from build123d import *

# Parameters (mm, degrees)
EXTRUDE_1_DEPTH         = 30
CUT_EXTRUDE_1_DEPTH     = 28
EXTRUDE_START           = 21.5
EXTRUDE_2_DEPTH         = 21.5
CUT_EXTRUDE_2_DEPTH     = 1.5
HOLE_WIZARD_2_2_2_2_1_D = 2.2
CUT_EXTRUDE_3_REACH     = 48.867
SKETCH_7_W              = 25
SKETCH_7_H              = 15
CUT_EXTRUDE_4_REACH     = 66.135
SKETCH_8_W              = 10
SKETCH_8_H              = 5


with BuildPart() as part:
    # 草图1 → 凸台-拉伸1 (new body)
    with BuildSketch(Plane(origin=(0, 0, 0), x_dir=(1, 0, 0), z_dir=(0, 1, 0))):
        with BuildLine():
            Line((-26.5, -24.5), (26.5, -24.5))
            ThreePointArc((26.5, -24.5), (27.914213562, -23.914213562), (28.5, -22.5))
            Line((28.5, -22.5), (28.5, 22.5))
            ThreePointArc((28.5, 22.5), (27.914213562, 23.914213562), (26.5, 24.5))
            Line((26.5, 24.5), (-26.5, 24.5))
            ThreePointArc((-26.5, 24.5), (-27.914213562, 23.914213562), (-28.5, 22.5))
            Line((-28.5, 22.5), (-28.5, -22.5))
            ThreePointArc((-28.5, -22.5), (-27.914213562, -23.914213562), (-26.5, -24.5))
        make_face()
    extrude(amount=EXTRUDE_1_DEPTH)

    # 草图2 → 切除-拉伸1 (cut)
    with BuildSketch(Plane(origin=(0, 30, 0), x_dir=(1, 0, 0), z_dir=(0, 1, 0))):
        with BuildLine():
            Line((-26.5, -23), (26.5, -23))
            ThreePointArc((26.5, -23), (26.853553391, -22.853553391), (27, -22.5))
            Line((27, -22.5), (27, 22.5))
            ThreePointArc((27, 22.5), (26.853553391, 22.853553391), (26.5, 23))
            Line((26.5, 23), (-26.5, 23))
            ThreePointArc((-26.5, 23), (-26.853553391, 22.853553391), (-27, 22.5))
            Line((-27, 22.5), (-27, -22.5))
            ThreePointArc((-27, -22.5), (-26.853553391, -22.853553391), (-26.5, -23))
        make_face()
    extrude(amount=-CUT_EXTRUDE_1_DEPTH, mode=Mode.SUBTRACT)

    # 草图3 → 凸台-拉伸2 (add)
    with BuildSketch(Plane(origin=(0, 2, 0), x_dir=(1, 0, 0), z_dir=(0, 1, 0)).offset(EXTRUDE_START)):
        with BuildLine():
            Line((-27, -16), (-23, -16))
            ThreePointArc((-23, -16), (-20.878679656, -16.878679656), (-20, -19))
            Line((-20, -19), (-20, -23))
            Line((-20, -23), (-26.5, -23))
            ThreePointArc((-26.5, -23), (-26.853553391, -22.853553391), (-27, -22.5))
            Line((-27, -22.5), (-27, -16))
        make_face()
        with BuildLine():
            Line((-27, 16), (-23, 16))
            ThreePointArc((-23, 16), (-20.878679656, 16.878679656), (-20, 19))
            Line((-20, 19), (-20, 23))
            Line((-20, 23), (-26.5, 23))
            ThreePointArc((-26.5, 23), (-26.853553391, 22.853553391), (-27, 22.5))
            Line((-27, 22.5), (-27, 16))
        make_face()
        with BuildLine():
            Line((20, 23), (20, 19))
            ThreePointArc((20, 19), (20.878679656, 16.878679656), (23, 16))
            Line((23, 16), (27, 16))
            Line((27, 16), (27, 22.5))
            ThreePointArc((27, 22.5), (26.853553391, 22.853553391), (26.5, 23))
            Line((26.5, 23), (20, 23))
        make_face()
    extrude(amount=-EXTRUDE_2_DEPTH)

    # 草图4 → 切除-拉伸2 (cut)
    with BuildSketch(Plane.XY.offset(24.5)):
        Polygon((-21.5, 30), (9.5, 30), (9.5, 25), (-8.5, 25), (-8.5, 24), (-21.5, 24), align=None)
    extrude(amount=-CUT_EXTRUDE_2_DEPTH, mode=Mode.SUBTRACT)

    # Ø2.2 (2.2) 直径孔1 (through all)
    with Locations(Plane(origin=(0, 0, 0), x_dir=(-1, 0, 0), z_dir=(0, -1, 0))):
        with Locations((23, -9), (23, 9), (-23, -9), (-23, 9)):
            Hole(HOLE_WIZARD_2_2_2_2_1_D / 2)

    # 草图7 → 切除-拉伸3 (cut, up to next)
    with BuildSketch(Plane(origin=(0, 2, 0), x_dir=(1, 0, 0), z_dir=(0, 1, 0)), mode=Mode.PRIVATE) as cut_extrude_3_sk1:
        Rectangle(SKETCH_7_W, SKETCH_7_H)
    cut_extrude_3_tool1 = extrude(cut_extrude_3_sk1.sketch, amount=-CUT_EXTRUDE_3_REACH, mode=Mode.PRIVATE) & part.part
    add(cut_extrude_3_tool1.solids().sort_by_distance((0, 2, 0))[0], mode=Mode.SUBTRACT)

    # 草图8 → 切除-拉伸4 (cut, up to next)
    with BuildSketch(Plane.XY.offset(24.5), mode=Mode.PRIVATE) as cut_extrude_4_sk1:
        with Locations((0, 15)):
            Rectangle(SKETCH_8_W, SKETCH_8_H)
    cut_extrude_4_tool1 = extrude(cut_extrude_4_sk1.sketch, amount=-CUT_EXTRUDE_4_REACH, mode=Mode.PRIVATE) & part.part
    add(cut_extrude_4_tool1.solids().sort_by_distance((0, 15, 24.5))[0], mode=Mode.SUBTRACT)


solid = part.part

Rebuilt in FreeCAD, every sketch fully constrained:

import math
import FreeCAD as App
import Part
import Sketcher

V = App.Vector
Q = App.Units.Quantity


def add_polygon(sketch, points):
    """Adds a closed chain of lines whose ends are joined by coincident constraints."""
    first, n = sketch.GeometryCount, len(points)
    for a, b in zip(points, points[1:] + points[:1]):
        sketch.addGeometry(Part.LineSegment(App.Vector(*a, 0), App.Vector(*b, 0)), False)
    for i in range(n):
        sketch.addConstraint(Sketcher.Constraint("Coincident", first + i, 2, first + (i + 1) % n, 1))

doc = App.newDocument("Part")
params = doc.addObject("Spreadsheet::Sheet", "Params")
for row, (alias, value) in enumerate([
    ("sketch1_radius", "2 mm"),
    ("sketch1_width", "53 mm"),
    ("sketch1_height", "45 mm"),
    ("pad1_length", "30 mm"),
    ("sketch2_radius", "0.5 mm"),
    ("sketch2_width", "53 mm"),
    ("sketch2_height", "45 mm"),
    ("pocket1_length", "28 mm"),
    ("sketch3_radius", "3 mm"),
    ("sketch3_radius2", "0.5 mm"),
    ("sketch3_width", "4 mm"),
    ("pad2_length", "21.5 mm"),
    ("sketch4_width", "31 mm"),
    ("sketch4_width2", "13 mm"),
    ("sketch4_height", "6 mm"),
    ("sketch4_height2", "1 mm"),
    ("pocket2_length", "1.5 mm"),
    ("sketch5_diameter", "2.2 mm"),
    ("hole_diameter", "2.2 mm"),
    ("sketch6_width", "25 mm"),
    ("sketch6_height", "15 mm"),
    ("sketch7_width", "10 mm"),
    ("sketch7_height", "5 mm"),
], start=1):
    params.set(f"A{row}", alias)
    params.set(f"B{row}", "=" + value)
    params.setAlias(f"B{row}", alias)

body = doc.addObject("PartDesign::Body", "Body")

sketch1 = body.newObject("Sketcher::SketchObject", "Sketch")
sketch1.AttachmentSupport = (doc.getObject("XZ_Plane"), [""])
sketch1.MapMode = "FlatFace"
sketch1.addGeometry([
    Part.LineSegment(V(-26.5, 24.5, 0), V(26.5, 24.5, 0)),
    Part.ArcOfCircle(Part.Circle(V(26.5, 22.5, 0), V(0, 0, 1), 2), math.radians(0), math.radians(90)),
    Part.LineSegment(V(28.5, 22.5, 0), V(28.5, -22.5, 0)),
    Part.ArcOfCircle(Part.Circle(V(26.5, -22.5, 0), V(0, 0, 1), 2), math.radians(-90), math.radians(0)),
    Part.LineSegment(V(26.5, -24.5, 0), V(-26.5, -24.5, 0)),
    Part.ArcOfCircle(Part.Circle(V(-26.5, -22.5, 0), V(0, 0, 1), 2), math.radians(-180), math.radians(-90)),
    Part.LineSegment(V(-28.5, -22.5, 0), V(-28.5, 22.5, 0)),
    Part.ArcOfCircle(Part.Circle(V(-26.5, 22.5, 0), V(0, 0, 1), 2), math.radians(90), math.radians(180)),
], False)
sketch1.addConstraint([
    Sketcher.Constraint("Tangent", 0, 2, 1, 2),
    Sketcher.Constraint("Tangent", 1, 1, 2, 1),
    Sketcher.Constraint("Tangent", 2, 2, 3, 2),
    Sketcher.Constraint("Tangent", 3, 1, 4, 1),
    Sketcher.Constraint("Tangent", 4, 2, 5, 2),
    Sketcher.Constraint("Tangent", 5, 1, 6, 1),
    Sketcher.Constraint("Tangent", 6, 2, 7, 2),
    Sketcher.Constraint("Tangent", 7, 1, 0, 1),
    Sketcher.Constraint("Horizontal", 0),
    Sketcher.Constraint("Vertical", 2),
    Sketcher.Constraint("Horizontal", 4),
    Sketcher.Constraint("Vertical", 6),
    Sketcher.Constraint("Equal", 1, 3),
    Sketcher.Constraint("Equal", 3, 5),
    Sketcher.Constraint("Equal", 5, 7),
    Sketcher.Constraint("Symmetric", 1, 3, 5, 3, -1, 1),
    Sketcher.Constraint("Radius", 1, Q("2 mm")),
    Sketcher.Constraint("DistanceX", 0, 1, 0, 2, Q("53 mm")),
    Sketcher.Constraint("DistanceY", 2, 2, 2, 1, Q("45 mm")),
])
sketch1.setExpression("Constraints[16]", "Params.sketch1_radius")
sketch1.setExpression("Constraints[17]", "Params.sketch1_width")
sketch1.setExpression("Constraints[18]", "Params.sketch1_height")
pad1 = body.newObject("PartDesign::Pad", "Pad")
pad1.Profile = sketch1
pad1.setExpression("Length", "Params.pad1_length")
pad1.Reversed = True

sketch2 = body.newObject("Sketcher::SketchObject", "Sketch001")
sketch2.AttachmentSupport = (doc.getObject("XZ_Plane"), [""])
sketch2.MapMode = "FlatFace"
sketch2.AttachmentOffset = App.Placement(V(0, 0, -30), App.Rotation())
sketch2.addGeometry([
    Part.LineSegment(V(-26.5, 23, 0), V(26.5, 23, 0)),
    Part.ArcOfCircle(Part.Circle(V(26.5, 22.5, 0), V(0, 0, 1), 0.5), math.radians(0), math.radians(90)),
    Part.LineSegment(V(27, 22.5, 0), V(27, -22.5, 0)),
    Part.ArcOfCircle(Part.Circle(V(26.5, -22.5, 0), V(0, 0, 1), 0.5), math.radians(-90), math.radians(0)),
    Part.LineSegment(V(26.5, -23, 0), V(-26.5, -23, 0)),
    Part.ArcOfCircle(Part.Circle(V(-26.5, -22.5, 0), V(0, 0, 1), 0.5), math.radians(180), math.radians(270)),
    Part.LineSegment(V(-27, -22.5, 0), V(-27, 22.5, 0)),
    Part.ArcOfCircle(Part.Circle(V(-26.5, 22.5, 0), V(0, 0, 1), 0.5), math.radians(90), math.radians(180)),
], False)
sketch2.addConstraint([
    Sketcher.Constraint("Tangent", 0, 2, 1, 2),
    Sketcher.Constraint("Tangent", 1, 1, 2, 1),
    Sketcher.Constraint("Tangent", 2, 2, 3, 2),
    Sketcher.Constraint("Tangent", 3, 1, 4, 1),
    Sketcher.Constraint("Tangent", 4, 2, 5, 2),
    Sketcher.Constraint("Tangent", 5, 1, 6, 1),
    Sketcher.Constraint("Tangent", 6, 2, 7, 2),
    Sketcher.Constraint("Tangent", 7, 1, 0, 1),
    Sketcher.Constraint("Horizontal", 0),
    Sketcher.Constraint("Vertical", 2),
    Sketcher.Constraint("Horizontal", 4),
    Sketcher.Constraint("Vertical", 6),
    Sketcher.Constraint("Equal", 1, 3),
    Sketcher.Constraint("Equal", 3, 5),
    Sketcher.Constraint("Equal", 5, 7),
    Sketcher.Constraint("Symmetric", 1, 3, 5, 3, -1, 1),
    Sketcher.Constraint("Radius", 1, Q("0.5 mm")),
    Sketcher.Constraint("DistanceX", 0, 1, 0, 2, Q("53 mm")),
    Sketcher.Constraint("DistanceY", 2, 2, 2, 1, Q("45 mm")),
])
sketch2.setExpression("Constraints[16]", "Params.sketch2_radius")
sketch2.setExpression("Constraints[17]", "Params.sketch2_width")
sketch2.setExpression("Constraints[18]", "Params.sketch2_height")
pocket1 = body.newObject("PartDesign::Pocket", "Pocket")
pocket1.Profile = sketch2
pocket1.setExpression("Length", "Params.pocket1_length")
pocket1.Reversed = True

sketch3 = body.newObject("Sketcher::SketchObject", "Sketch002")
sketch3.AttachmentSupport = (doc.getObject("XZ_Plane"), [""])
sketch3.MapMode = "FlatFace"
sketch3.AttachmentOffset = App.Placement(V(0, 0, -23.5), App.Rotation())
sketch3.addGeometry([
    Part.LineSegment(V(-23, 16, 0), V(-27, 16, 0)),
    Part.LineSegment(V(-27, 16, 0), V(-27, 22.5, 0)),
    Part.ArcOfCircle(Part.Circle(V(-26.5, 22.5, 0), V(0, 0, 1), 0.5), math.radians(90), math.radians(180)),
    Part.LineSegment(V(-26.5, 23, 0), V(-20, 23, 0)),
    Part.LineSegment(V(-20, 23, 0), V(-20, 19, 0)),
    Part.ArcOfCircle(Part.Circle(V(-23, 19, 0), V(0, 0, 1), 3), math.radians(-90), math.radians(0)),
    Part.LineSegment(V(-27, -16, 0), V(-23, -16, 0)),
    Part.ArcOfCircle(Part.Circle(V(-23, -19, 0), V(0, 0, 1), 3), math.radians(0), math.radians(90)),
    Part.LineSegment(V(-20, -19, 0), V(-20, -23, 0)),
    Part.LineSegment(V(-20, -23, 0), V(-26.5, -23, 0)),
    Part.ArcOfCircle(Part.Circle(V(-26.5, -22.5, 0), V(0, 0, 1), 0.5), math.radians(180), math.radians(270)),
    Part.LineSegment(V(-27, -22.5, 0), V(-27, -16, 0)),
    Part.LineSegment(V(20, -23, 0), V(20, -19, 0)),
    Part.ArcOfCircle(Part.Circle(V(23, -19, 0), V(0, 0, 1), 3), math.radians(90), math.radians(180)),
    Part.LineSegment(V(23, -16, 0), V(27, -16, 0)),
    Part.LineSegment(V(27, -16, 0), V(27, -22.5, 0)),
    Part.ArcOfCircle(Part.Circle(V(26.5, -22.5, 0), V(0, 0, 1), 0.5), math.radians(-90), math.radians(0)),
    Part.LineSegment(V(26.5, -23, 0), V(20, -23, 0)),
], False)
sketch3.addConstraint([
    Sketcher.Constraint("Coincident", 0, 2, 1, 1),
    Sketcher.Constraint("Tangent", 1, 2, 2, 2),
    Sketcher.Constraint("Tangent", 2, 1, 3, 1),
    Sketcher.Constraint("Coincident", 3, 2, 4, 1),
    Sketcher.Constraint("Tangent", 4, 2, 5, 2),
    Sketcher.Constraint("Tangent", 5, 1, 0, 1),
    Sketcher.Constraint("Tangent", 6, 2, 7, 2),
    Sketcher.Constraint("Tangent", 7, 1, 8, 1),
    Sketcher.Constraint("Coincident", 8, 2, 9, 1),
    Sketcher.Constraint("Tangent", 9, 2, 10, 2),
    Sketcher.Constraint("Tangent", 10, 1, 11, 1),
    Sketcher.Constraint("Coincident", 11, 2, 6, 1),
    Sketcher.Constraint("Tangent", 12, 2, 13, 2),
    Sketcher.Constraint("Tangent", 13, 1, 14, 1),
    Sketcher.Constraint("Coincident", 14, 2, 15, 1),
    Sketcher.Constraint("Tangent", 15, 2, 16, 2),
    Sketcher.Constraint("Tangent", 16, 1, 17, 1),
    Sketcher.Constraint("Coincident", 17, 2, 12, 1),
    Sketcher.Constraint("Horizontal", 0),
    Sketcher.Constraint("Vertical", 1),
    Sketcher.Constraint("Horizontal", 3),
    Sketcher.Constraint("Vertical", 4),
    Sketcher.Constraint("Horizontal", 6),
    Sketcher.Constraint("Vertical", 8),
    Sketcher.Constraint("Horizontal", 9),
    Sketcher.Constraint("Vertical", 11),
    Sketcher.Constraint("Vertical", 12),
    Sketcher.Constraint("Horizontal", 14),
    Sketcher.Constraint("Vertical", 15),
    Sketcher.Constraint("Horizontal", 17),
    Sketcher.Constraint("Equal", 5, 7),
    Sketcher.Constraint("Equal", 2, 10),
    Sketcher.Constraint("Equal", 7, 13),
    Sketcher.Constraint("Equal", 10, 16),
    Sketcher.Constraint("Symmetric", 5, 3, 13, 3, -1, 1),
    Sketcher.Constraint("Symmetric", 2, 3, 16, 3, -1, 1),
    Sketcher.Constraint("Symmetric", 7, 3, 13, 3, -2),
    Sketcher.Constraint("Symmetric", 10, 3, 16, 3, -2),
    Sketcher.Constraint("Equal", 17, 1),
    Sketcher.Constraint("Radius", 5, Q("3 mm")),
    Sketcher.Constraint("Radius", 2, Q("0.5 mm")),
    Sketcher.Constraint("DistanceX", 0, 2, 0, 1, Q("4 mm")),
    Sketcher.Constraint("DistanceX", 5, 3, -1, 1, Q("23 mm")),
    Sketcher.Constraint("DistanceY", -1, 1, 5, 3, Q("19 mm")),
])
sketch3.setExpression("Constraints[39]", "Params.sketch3_radius")
sketch3.setExpression("Constraints[40]", "Params.sketch3_radius2")
sketch3.setExpression("Constraints[41]", "Params.sketch3_width")
pad2 = body.newObject("PartDesign::Pad", "Pad001")
pad2.Profile = sketch3
pad2.setExpression("Length", "Params.pad2_length")

sketch4 = body.newObject("Sketcher::SketchObject", "Sketch003")
sketch4.AttachmentSupport = (doc.getObject("XY_Plane"), [""])
sketch4.MapMode = "FlatFace"
sketch4.AttachmentOffset = App.Placement(V(0, 0, 24.5), App.Rotation())
add_polygon(sketch4, [(9.5, 30), (-21.5, 30), (-21.5, 24), (-8.5, 24), (-8.5, 25), (9.5, 25)])
sketch4.addConstraint([
    Sketcher.Constraint("Horizontal", 0),
    Sketcher.Constraint("Vertical", 1),
    Sketcher.Constraint("Horizontal", 2),
    Sketcher.Constraint("Vertical", 3),
    Sketcher.Constraint("Horizontal", 4),
    Sketcher.Constraint("Vertical", 5),
    Sketcher.Constraint("DistanceX", 0, 2, 0, 1, Q("31 mm")),
    Sketcher.Constraint("DistanceX", 2, 1, 2, 2, Q("13 mm")),
    Sketcher.Constraint("DistanceY", 1, 2, 1, 1, Q("6 mm")),
    Sketcher.Constraint("DistanceY", 3, 1, 3, 2, Q("1 mm")),
    Sketcher.Constraint("DistanceY", -1, 1, 0, 2, Q("30 mm")),
    Sketcher.Constraint("DistanceX", 0, 2, -1, 1, Q("21.5 mm")),
])
sketch4.setExpression("Constraints[12]", "Params.sketch4_width")
sketch4.setExpression("Constraints[13]", "Params.sketch4_width2")
sketch4.setExpression("Constraints[14]", "Params.sketch4_height")
sketch4.setExpression("Constraints[15]", "Params.sketch4_height2")
pocket2 = body.newObject("PartDesign::Pocket", "Pocket001")
pocket2.Profile = sketch4
pocket2.setExpression("Length", "Params.pocket2_length")

sketch5 = body.newObject("Sketcher::SketchObject", "Sketch004")
sketch5.AttachmentSupport = (doc.getObject("XZ_Plane"), [""])
sketch5.MapMode = "FlatFace"
sketch5.addGeometry([
    Part.Circle(V(-23, 9, 0), V(0, 0, 1), 1.1),
    Part.Circle(V(-23, -9, 0), V(0, 0, 1), 1.1),
    Part.Circle(V(23, 9, 0), V(0, 0, 1), 1.1),
    Part.Circle(V(23, -9, 0), V(0, 0, 1), 1.1),
], False)
sketch5.addConstraint([
    Sketcher.Constraint("Equal", 0, 1),
    Sketcher.Constraint("Equal", 1, 2),
    Sketcher.Constraint("Equal", 2, 3),
    Sketcher.Constraint("Symmetric", 1, 3, 2, 3, -1, 1),
    Sketcher.Constraint("Symmetric", 0, 3, 3, 3, -1, 1),
    Sketcher.Constraint("Symmetric", 0, 3, 2, 3, -2),
    Sketcher.Constraint("Diameter", 0, Q("2.2 mm")),
    Sketcher.Constraint("DistanceX", 0, 3, -1, 1, Q("23 mm")),
    Sketcher.Constraint("DistanceY", -1, 1, 0, 3, Q("9 mm")),
])
sketch5.setExpression("Constraints[6]", "Params.sketch5_diameter")
doc.recompute()
hole = body.newObject("PartDesign::Hole", "Hole")
hole.Profile = sketch5
hole.ThreadType = "None"
hole.setExpression("Diameter", "Params.hole_diameter")
hole.DepthType = "ThroughAll"

sketch6 = body.newObject("Sketcher::SketchObject", "Sketch005")
sketch6.AttachmentSupport = (doc.getObject("XZ_Plane"), [""])
sketch6.MapMode = "FlatFace"
sketch6.AttachmentOffset = App.Placement(V(0, 0, -2), App.Rotation())
add_polygon(sketch6, [(-12, -8), (-12, 8), (12, 8), (12, -8)])
sketch6.addConstraint([
    Sketcher.Constraint("Vertical", 0),
    Sketcher.Constraint("Horizontal", 1),
    Sketcher.Constraint("Vertical", 2),
    Sketcher.Constraint("Horizontal", 3),
    Sketcher.Constraint("Symmetric", 0, 2, 2, 2, -1, 1),
    Sketcher.Constraint("DistanceX", 1, 1, 1, 2, Q("25 mm")),
    Sketcher.Constraint("DistanceY", 0, 1, 0, 2, Q("15 mm")),
])
sketch6.setExpression("Constraints[9]", "Params.sketch6_width")
sketch6.setExpression("Constraints[10]", "Params.sketch6_height")
pocket3 = body.newObject("PartDesign::Pocket", "Pocket002")
pocket3.Profile = sketch6
pocket3.Type = "UpToFirst"
pocket3.Reversed = True

sketch7 = body.newObject("Sketcher::SketchObject", "Sketch006")
sketch7.AttachmentSupport = (doc.getObject("XY_Plane"), [""])
sketch7.MapMode = "FlatFace"
sketch7.AttachmentOffset = App.Placement(V(0, 0, 24.5), App.Rotation())
add_polygon(sketch7, [(-5, 18), (-5, 12), (5, 12), (5, 18)])
sketch7.addConstraint([
    Sketcher.Constraint("Vertical", 0),
    Sketcher.Constraint("Horizontal", 1),
    Sketcher.Constraint("Vertical", 2),
    Sketcher.Constraint("Horizontal", 3),
    Sketcher.Constraint("DistanceX", 1, 1, 1, 2, Q("10 mm")),
    Sketcher.Constraint("DistanceY", 0, 2, 0, 1, Q("5 mm")),
    Sketcher.Constraint("DistanceX", 0, 2, -1, 1, Q("5 mm")),
    Sketcher.Constraint("DistanceY", -1, 1, 0, 2, Q("12.5 mm")),
])
sketch7.setExpression("Constraints[8]", "Params.sketch7_width")
sketch7.setExpression("Constraints[9]", "Params.sketch7_height")
pocket4 = body.newObject("PartDesign::Pocket", "Pocket003")
pocket4.Profile = sketch7
pocket4.Type = "UpToFirst"

doc.recompute()
